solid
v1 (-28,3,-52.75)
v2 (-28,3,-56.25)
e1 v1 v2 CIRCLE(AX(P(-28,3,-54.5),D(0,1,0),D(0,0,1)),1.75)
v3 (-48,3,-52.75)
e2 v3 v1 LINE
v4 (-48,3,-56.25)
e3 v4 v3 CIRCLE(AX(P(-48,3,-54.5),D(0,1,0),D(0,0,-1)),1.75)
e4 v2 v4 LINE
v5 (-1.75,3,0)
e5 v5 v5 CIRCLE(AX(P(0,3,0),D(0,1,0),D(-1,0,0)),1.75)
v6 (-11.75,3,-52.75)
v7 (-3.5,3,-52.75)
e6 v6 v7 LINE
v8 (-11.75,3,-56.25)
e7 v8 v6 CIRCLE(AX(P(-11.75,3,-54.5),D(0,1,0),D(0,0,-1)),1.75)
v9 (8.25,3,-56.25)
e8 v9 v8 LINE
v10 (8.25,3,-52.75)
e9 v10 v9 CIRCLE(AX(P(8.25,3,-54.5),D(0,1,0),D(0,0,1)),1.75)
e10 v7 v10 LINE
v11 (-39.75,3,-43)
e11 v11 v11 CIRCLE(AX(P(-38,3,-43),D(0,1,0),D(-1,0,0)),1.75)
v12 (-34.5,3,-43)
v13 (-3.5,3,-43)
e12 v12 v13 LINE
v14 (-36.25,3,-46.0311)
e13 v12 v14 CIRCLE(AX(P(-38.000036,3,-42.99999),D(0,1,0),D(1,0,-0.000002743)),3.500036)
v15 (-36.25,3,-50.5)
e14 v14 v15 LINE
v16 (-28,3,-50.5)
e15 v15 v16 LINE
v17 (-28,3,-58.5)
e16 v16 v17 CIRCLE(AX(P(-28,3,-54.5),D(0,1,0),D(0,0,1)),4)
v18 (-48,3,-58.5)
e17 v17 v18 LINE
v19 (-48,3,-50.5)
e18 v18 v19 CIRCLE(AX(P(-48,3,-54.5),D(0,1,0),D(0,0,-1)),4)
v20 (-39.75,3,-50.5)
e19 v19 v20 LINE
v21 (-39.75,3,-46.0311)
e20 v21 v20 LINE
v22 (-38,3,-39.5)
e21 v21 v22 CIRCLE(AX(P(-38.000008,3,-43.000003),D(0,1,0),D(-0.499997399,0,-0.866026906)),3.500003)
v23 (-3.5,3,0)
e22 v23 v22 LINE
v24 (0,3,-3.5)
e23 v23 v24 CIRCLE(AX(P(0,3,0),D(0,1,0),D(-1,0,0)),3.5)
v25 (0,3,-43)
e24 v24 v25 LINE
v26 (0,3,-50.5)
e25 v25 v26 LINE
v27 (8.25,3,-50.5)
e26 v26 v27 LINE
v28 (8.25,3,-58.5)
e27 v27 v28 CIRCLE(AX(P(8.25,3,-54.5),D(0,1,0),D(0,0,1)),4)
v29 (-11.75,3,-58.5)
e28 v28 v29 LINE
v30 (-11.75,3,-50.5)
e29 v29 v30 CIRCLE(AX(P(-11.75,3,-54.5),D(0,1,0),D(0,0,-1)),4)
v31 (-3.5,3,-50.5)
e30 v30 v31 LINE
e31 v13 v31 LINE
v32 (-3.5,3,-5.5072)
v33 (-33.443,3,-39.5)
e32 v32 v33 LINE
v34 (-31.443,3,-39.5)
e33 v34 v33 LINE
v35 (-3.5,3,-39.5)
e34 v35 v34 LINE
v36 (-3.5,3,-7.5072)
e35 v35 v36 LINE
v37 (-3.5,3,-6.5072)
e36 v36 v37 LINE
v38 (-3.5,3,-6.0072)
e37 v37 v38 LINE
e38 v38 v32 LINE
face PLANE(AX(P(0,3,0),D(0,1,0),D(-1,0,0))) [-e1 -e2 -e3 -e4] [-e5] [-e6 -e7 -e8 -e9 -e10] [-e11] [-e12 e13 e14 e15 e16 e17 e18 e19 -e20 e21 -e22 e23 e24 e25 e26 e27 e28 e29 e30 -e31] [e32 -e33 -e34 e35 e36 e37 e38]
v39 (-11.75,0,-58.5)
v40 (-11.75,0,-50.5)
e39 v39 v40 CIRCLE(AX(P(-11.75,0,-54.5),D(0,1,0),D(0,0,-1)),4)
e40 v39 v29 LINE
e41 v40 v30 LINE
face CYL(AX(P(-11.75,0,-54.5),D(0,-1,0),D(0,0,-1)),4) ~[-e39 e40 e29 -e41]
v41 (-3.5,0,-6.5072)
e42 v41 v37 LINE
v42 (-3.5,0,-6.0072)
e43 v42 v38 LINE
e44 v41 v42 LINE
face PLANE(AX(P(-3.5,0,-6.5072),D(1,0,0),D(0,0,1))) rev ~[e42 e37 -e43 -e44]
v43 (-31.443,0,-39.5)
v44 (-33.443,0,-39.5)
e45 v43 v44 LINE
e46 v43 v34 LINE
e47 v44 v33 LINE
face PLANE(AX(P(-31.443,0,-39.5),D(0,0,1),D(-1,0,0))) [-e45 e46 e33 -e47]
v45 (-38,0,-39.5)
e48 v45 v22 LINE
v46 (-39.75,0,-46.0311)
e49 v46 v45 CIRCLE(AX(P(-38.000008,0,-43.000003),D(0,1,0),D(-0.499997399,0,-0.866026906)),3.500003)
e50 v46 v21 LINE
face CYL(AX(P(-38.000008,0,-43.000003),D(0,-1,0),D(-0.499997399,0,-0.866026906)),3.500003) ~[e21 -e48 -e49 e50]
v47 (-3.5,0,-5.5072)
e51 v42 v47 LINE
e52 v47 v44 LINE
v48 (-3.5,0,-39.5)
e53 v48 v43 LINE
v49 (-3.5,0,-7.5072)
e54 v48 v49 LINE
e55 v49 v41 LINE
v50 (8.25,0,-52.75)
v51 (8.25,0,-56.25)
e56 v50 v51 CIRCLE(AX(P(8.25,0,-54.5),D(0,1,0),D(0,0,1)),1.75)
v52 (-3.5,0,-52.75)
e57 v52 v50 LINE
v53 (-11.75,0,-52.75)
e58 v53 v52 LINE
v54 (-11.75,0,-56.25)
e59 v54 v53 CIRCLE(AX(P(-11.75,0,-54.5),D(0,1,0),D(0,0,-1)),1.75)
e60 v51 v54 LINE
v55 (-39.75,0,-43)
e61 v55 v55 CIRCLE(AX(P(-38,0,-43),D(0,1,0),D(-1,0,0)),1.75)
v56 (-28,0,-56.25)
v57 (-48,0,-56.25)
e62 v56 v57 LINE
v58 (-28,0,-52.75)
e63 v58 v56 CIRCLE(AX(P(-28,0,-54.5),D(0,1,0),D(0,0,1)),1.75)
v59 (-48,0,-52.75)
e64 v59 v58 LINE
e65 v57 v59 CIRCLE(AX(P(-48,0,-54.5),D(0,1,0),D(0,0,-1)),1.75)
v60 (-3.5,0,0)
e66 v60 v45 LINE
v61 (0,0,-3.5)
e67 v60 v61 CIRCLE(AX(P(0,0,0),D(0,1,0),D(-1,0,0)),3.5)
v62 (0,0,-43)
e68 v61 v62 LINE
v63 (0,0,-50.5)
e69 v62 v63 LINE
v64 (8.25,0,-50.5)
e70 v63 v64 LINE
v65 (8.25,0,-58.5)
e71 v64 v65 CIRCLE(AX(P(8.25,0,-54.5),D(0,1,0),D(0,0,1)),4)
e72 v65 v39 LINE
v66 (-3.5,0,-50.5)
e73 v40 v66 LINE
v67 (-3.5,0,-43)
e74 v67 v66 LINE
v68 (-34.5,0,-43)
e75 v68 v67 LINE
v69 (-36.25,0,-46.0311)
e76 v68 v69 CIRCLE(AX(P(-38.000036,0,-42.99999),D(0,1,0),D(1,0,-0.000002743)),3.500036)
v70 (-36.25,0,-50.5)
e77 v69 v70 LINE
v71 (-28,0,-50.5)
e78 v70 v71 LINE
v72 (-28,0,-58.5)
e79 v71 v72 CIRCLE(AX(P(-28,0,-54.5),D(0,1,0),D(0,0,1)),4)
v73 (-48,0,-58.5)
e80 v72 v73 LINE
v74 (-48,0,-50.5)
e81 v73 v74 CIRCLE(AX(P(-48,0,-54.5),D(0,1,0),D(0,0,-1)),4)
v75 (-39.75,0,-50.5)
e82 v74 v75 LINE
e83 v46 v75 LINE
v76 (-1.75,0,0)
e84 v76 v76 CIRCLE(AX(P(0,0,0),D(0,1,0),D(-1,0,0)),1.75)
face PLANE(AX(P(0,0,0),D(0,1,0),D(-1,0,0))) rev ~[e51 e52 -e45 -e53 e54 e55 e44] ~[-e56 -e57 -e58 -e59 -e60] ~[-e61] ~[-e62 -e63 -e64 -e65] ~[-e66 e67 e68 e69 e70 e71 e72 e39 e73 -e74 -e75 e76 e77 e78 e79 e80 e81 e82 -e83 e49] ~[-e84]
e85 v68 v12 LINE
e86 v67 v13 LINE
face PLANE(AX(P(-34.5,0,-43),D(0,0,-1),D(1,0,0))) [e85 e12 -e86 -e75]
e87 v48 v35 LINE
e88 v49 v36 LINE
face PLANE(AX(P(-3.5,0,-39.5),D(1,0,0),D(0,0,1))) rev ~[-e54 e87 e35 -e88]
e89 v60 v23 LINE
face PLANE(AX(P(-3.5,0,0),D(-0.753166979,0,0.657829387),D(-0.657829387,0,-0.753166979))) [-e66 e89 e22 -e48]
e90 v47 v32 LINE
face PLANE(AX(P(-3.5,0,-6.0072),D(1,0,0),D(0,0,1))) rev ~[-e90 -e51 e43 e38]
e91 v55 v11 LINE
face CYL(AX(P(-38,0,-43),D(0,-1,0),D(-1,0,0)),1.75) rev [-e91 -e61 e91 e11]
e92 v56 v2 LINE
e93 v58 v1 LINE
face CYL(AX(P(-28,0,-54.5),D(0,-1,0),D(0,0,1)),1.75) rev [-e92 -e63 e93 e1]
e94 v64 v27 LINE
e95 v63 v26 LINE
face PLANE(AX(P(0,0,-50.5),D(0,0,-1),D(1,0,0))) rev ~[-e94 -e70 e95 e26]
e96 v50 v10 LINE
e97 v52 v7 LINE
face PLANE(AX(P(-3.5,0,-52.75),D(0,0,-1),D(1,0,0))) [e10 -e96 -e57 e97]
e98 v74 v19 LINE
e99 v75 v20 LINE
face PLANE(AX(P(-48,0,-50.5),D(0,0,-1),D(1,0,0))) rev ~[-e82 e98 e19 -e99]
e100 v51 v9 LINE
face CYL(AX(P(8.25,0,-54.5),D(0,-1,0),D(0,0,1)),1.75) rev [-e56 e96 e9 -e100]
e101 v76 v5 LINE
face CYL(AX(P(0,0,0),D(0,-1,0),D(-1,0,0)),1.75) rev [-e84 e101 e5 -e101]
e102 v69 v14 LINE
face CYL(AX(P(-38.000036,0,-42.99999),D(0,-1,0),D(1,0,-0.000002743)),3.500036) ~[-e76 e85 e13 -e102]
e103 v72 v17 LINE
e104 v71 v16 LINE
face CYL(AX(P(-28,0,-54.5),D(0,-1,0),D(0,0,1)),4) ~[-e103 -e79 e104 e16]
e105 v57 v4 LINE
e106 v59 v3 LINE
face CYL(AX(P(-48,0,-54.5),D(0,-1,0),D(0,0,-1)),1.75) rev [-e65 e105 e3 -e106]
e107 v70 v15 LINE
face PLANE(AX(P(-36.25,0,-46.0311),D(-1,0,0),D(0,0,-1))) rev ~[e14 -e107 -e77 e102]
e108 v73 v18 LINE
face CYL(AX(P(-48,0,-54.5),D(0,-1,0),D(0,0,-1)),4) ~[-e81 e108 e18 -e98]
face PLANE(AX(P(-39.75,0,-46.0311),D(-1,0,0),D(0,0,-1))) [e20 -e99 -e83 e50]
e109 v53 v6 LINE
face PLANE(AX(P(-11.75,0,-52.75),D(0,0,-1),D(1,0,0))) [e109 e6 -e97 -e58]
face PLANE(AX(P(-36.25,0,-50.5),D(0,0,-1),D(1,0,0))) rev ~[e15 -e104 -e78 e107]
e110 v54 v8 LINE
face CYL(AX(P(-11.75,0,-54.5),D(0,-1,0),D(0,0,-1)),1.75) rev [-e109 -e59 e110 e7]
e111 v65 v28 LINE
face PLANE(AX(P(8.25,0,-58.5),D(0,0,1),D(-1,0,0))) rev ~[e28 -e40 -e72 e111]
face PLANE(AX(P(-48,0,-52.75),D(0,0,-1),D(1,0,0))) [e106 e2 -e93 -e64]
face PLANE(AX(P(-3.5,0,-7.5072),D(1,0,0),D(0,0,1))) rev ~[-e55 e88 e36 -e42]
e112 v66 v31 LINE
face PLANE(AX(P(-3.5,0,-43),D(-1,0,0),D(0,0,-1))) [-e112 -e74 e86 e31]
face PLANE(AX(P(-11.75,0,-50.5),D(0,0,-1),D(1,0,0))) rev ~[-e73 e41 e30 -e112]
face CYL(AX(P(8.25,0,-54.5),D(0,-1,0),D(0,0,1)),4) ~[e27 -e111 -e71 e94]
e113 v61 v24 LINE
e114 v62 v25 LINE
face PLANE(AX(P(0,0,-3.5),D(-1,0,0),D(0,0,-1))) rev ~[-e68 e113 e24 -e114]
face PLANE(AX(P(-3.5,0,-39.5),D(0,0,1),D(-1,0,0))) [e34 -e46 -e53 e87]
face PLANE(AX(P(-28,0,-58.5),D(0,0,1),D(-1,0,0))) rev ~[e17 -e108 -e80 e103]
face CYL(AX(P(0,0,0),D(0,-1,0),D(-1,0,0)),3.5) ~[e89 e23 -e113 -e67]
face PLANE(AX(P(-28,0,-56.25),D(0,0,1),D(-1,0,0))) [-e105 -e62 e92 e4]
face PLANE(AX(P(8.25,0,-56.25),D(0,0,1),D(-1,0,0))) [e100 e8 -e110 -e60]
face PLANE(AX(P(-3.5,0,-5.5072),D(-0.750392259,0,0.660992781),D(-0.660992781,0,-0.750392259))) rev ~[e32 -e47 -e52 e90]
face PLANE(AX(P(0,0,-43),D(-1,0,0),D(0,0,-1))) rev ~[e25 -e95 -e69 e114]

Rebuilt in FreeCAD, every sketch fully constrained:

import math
import FreeCAD as App
import Part
import Sketcher
Q = App.Units.Quantity

doc = App.newDocument("Part")
body = doc.addObject("PartDesign::Body", "Body")

sketch1 = body.newObject("Sketcher::SketchObject", "Sketch")
sketch1.AttachmentSupport = (doc.getObject("XZ_Plane"), [""])
sketch1.MapMode = "FlatFace"
sketch1.addGeometry([
    Part.LineSegment(App.Vector(-38, -39.5, 0), App.Vector(-3.5, 0, 0)),
    Part.ArcOfCircle(Part.Circle(App.Vector(0, 0, 0), App.Vector(0, 0, 1), 3.5), math.radians(-90), math.radians(180)),
    Part.LineSegment(App.Vector(0, -3.5, 0), App.Vector(0, -50.5, 0)),
    Part.LineSegment(App.Vector(0, -50.5, 0), App.Vector(8.2, -50.5, 0)),
    Part.ArcOfCircle(Part.Circle(App.Vector(8.2, -54.5, 0), App.Vector(0, 0, 1), 4), math.radians(-90), math.radians(90)),
    Part.LineSegment(App.Vector(8.2, -58.5, 0), App.Vector(-11.8, -58.5, 0)),
    Part.ArcOfCircle(Part.Circle(App.Vector(-11.8, -54.5, 0), App.Vector(0, 0, 1), 4), math.radians(90), math.radians(270)),
    Part.LineSegment(App.Vector(-11.8, -50.5, 0), App.Vector(-3.5, -50.5, 0)),
    Part.LineSegment(App.Vector(-3.5, -50.5, 0), App.Vector(-3.5, -43, 0)),
    Part.LineSegment(App.Vector(-3.5, -43, 0), App.Vector(-34.5, -43, 0)),
    Part.ArcOfCircle(Part.Circle(App.Vector(-38, -43, 0), App.Vector(0, 0, 1), 3.5), math.radians(-60), math.radians(0)),
    Part.LineSegment(App.Vector(-36.2, -46, 0), App.Vector(-36.2, -50.5, 0)),
    Part.LineSegment(App.Vector(-36.2, -50.5, 0), App.Vector(-28, -50.5, 0)),
    Part.ArcOfCircle(Part.Circle(App.Vector(-28, -54.5, 0), App.Vector(0, 0, 1), 4), math.radians(-90), math.radians(90)),
    Part.LineSegment(App.Vector(-28, -58.5, 0), App.Vector(-48, -58.5, 0)),
    Part.ArcOfCircle(Part.Circle(App.Vector(-48, -54.5, 0), App.Vector(0, 0, 1), 4), math.radians(90), math.radians(270)),
    Part.LineSegment(App.Vector(-48, -50.5, 0), App.Vector(-39.8, -50.5, 0)),
    Part.LineSegment(App.Vector(-39.8, -50.5, 0), App.Vector(-39.8, -46, 0)),
    Part.ArcOfCircle(Part.Circle(App.Vector(-38, -43, 0), App.Vector(0, 0, 1), 3.5), math.radians(90), math.radians(240)),
    Part.LineSegment(App.Vector(-11.8, -56.2, 0), App.Vector(8.2, -56.2, 0)),
    Part.ArcOfCircle(Part.Circle(App.Vector(8.2, -54.5, 0), App.Vector(0, 0, 1), 1.8), math.radians(-90), math.radians(90)),
    Part.LineSegment(App.Vector(8.2, -52.8, 0), App.Vector(-11.8, -52.8, 0)),
    Part.ArcOfCircle(Part.Circle(App.Vector(-11.8, -54.5, 0), App.Vector(0, 0, 1), 1.8), math.radians(90), math.radians(270)),
    Part.LineSegment(App.Vector(-48, -56.2, 0), App.Vector(-28, -56.2, 0)),
    Part.ArcOfCircle(Part.Circle(App.Vector(-28, -54.5, 0), App.Vector(0, 0, 1), 1.8), math.radians(-90), math.radians(90)),
    Part.LineSegment(App.Vector(-28, -52.8, 0), App.Vector(-48, -52.8, 0)),
    Part.ArcOfCircle(Part.Circle(App.Vector(-48, -54.5, 0), App.Vector(0, 0, 1), 1.8), math.radians(90), math.radians(270)),
    Part.Circle(App.Vector(-38, -43, 0), App.Vector(0, 0, 1), 1.8),
    Part.LineSegment(App.Vector(-33.4, -39.5, 0), App.Vector(-3.5, -39.5, 0)),
    Part.LineSegment(App.Vector(-3.5, -39.5, 0), App.Vector(-3.5, -5.5, 0)),
    Part.LineSegment(App.Vector(-3.5, -5.5, 0), App.Vector(-33.4, -39.5, 0)),
    Part.Circle(App.Vector(0, 0, 0), App.Vector(0, 0, 1), 1.8),
], False)
sketch1.addConstraint([
    Sketcher.Constraint("Coincident", 0, 2, 1, 2),
    Sketcher.Constraint("Coincident", 1, 1, 2, 1),
    Sketcher.Constraint("Coincident", 2, 2, 3, 1),
    Sketcher.Constraint("Tangent", 3, 2, 4, 2),
    Sketcher.Constraint("Tangent", 4, 1, 5, 1),
    Sketcher.Constraint("Tangent", 5, 2, 6, 2),
    Sketcher.Constraint("Tangent", 6, 1, 7, 1),
    Sketcher.Constraint("Coincident", 7, 2, 8, 1),
    Sketcher.Constraint("Coincident", 8, 2, 9, 1),
    Sketcher.Constraint("Coincident", 9, 2, 10, 2),
    Sketcher.Constraint("Coincident", 10, 1, 11, 1),
    Sketcher.Constraint("Coincident", 11, 2, 12, 1),
    Sketcher.Constraint("Tangent", 12, 2, 13, 2),
    Sketcher.Constraint("Tangent", 13, 1, 14, 1),
    Sketcher.Constraint("Tangent", 14, 2, 15, 2),
    Sketcher.Constraint("Tangent", 15, 1, 16, 1),
    Sketcher.Constraint("Coincident", 16, 2, 17, 1),
    Sketcher.Constraint("Coincident", 17, 2, 18, 2),
    Sketcher.Constraint("Coincident", 18, 1, 0, 1),
    Sketcher.Constraint("Tangent", 19, 2, 20, 1),
    Sketcher.Constraint("Tangent", 20, 2, 21, 1),
    Sketcher.Constraint("Tangent", 21, 2, 22, 1),
    Sketcher.Constraint("Tangent", 22, 2, 19, 1),
    Sketcher.Constraint("Tangent", 23, 2, 24, 1),
    Sketcher.Constraint("Tangent", 24, 2, 25, 1),
    Sketcher.Constraint("Tangent", 25, 2, 26, 1),
    Sketcher.Constraint("Tangent", 26, 2, 23, 1),
    Sketcher.Constraint("Coincident", 28, 2, 29, 1),
    Sketcher.Constraint("Coincident", 29, 2, 30, 1),
    Sketcher.Constraint("Coincident", 30, 2, 28, 1),
    Sketcher.Constraint("Vertical", 2),
    Sketcher.Constraint("Horizontal", 3),
    Sketcher.Constraint("Horizontal", 5),
    Sketcher.Constraint("Horizontal", 7),
    Sketcher.Constraint("Vertical", 8),
    Sketcher.Constraint("Horizontal", 9),
    Sketcher.Constraint("Vertical", 11),
    Sketcher.Constraint("Horizontal", 12),
    Sketcher.Constraint("Horizontal", 14),
    Sketcher.Constraint("Horizontal", 16),
    Sketcher.Constraint("Vertical", 17),
    Sketcher.Constraint("Horizontal", 19),
    Sketcher.Constraint("Horizontal", 21),
    Sketcher.Constraint("Horizontal", 23),
    Sketcher.Constraint("Horizontal", 25),
    Sketcher.Constraint("Horizontal", 28),
    Sketcher.Constraint("Vertical", 29),
    Sketcher.Constraint("Coincident", 1, 3, -1, 1),
    Sketcher.Constraint("Coincident", 31, 3, -1, 1),
    Sketcher.Constraint("Coincident", 18, 3, 10, 3),
    Sketcher.Constraint("Coincident", 20, 3, 4, 3),
    Sketcher.Constraint("Coincident", 22, 3, 6, 3),
    Sketcher.Constraint("Coincident", 24, 3, 13, 3),
    Sketcher.Constraint("Coincident", 26, 3, 15, 3),
    Sketcher.Constraint("Coincident", 27, 3, 10, 3),
    Sketcher.Constraint("Equal", 1, 10),
    Sketcher.Constraint("Equal", 6, 13),
    Sketcher.Constraint("Equal", 10, 18),
    Sketcher.Constraint("Equal", 22, 24),
    Sketcher.Constraint("Equal", 26, 27),
    Sketcher.Constraint("Equal", 27, 31),
    Sketcher.Constraint("PointOnObject", 0, 2, -1),
    Sketcher.Constraint("PointOnObject", 1, 1, -2),
    Sketcher.Constraint("Horizontal", 6, 3, 13, 3),
    Sketcher.Constraint("Horizontal", 27, 3, 8, 2),
    Sketcher.Constraint("Horizontal", 10, 1, 17, 2),
    Sketcher.Constraint("Horizontal", 18, 1, 28, 2),
    Sketcher.Constraint("Vertical", 0, 2, 7, 2),
    Sketcher.Constraint("Vertical", 27, 3, 18, 1),
    Sketcher.Constraint("Vertical", 8, 2, 28, 2),
    Sketcher.Constraint("Equal", 3, 7),
    Sketcher.Constraint("Equal", 7, 12),
    Sketcher.Constraint("Equal", 5, 14),
    Sketcher.Constraint("Equal", 12, 16),
    Sketcher.Constraint("Radius", 4, Q("4 mm")),
    Sketcher.Constraint("Diameter", 27, Q("3.5 mm")),
    Sketcher.Constraint("Radius", 1, Q("3.5 mm")),
    Sketcher.Constraint("DistanceX", 10, 3, 13, 3, Q("10 mm")),
    Sketcher.Constraint("DistanceX", 9, 2, 9, 1, Q("31 mm")),
    Sketcher.Constraint("DistanceY", 2, 2, 2, 1, Q("47 mm")),
    Sketcher.Constraint("DistanceY", 8, 1, 8, 2, Q("7.5 mm")),
    Sketcher.Constraint("Distance", 30, Q("45.3 mm")),
    Sketcher.Constraint("DistanceX", 28, 1, 28, 2, Q("29.943 mm")),
])
pad1 = body.newObject("PartDesign::Pad", "Pad")
pad1.Profile = sketch1
pad1.Length = 3
pad1.Reversed = True

doc.recompute()
